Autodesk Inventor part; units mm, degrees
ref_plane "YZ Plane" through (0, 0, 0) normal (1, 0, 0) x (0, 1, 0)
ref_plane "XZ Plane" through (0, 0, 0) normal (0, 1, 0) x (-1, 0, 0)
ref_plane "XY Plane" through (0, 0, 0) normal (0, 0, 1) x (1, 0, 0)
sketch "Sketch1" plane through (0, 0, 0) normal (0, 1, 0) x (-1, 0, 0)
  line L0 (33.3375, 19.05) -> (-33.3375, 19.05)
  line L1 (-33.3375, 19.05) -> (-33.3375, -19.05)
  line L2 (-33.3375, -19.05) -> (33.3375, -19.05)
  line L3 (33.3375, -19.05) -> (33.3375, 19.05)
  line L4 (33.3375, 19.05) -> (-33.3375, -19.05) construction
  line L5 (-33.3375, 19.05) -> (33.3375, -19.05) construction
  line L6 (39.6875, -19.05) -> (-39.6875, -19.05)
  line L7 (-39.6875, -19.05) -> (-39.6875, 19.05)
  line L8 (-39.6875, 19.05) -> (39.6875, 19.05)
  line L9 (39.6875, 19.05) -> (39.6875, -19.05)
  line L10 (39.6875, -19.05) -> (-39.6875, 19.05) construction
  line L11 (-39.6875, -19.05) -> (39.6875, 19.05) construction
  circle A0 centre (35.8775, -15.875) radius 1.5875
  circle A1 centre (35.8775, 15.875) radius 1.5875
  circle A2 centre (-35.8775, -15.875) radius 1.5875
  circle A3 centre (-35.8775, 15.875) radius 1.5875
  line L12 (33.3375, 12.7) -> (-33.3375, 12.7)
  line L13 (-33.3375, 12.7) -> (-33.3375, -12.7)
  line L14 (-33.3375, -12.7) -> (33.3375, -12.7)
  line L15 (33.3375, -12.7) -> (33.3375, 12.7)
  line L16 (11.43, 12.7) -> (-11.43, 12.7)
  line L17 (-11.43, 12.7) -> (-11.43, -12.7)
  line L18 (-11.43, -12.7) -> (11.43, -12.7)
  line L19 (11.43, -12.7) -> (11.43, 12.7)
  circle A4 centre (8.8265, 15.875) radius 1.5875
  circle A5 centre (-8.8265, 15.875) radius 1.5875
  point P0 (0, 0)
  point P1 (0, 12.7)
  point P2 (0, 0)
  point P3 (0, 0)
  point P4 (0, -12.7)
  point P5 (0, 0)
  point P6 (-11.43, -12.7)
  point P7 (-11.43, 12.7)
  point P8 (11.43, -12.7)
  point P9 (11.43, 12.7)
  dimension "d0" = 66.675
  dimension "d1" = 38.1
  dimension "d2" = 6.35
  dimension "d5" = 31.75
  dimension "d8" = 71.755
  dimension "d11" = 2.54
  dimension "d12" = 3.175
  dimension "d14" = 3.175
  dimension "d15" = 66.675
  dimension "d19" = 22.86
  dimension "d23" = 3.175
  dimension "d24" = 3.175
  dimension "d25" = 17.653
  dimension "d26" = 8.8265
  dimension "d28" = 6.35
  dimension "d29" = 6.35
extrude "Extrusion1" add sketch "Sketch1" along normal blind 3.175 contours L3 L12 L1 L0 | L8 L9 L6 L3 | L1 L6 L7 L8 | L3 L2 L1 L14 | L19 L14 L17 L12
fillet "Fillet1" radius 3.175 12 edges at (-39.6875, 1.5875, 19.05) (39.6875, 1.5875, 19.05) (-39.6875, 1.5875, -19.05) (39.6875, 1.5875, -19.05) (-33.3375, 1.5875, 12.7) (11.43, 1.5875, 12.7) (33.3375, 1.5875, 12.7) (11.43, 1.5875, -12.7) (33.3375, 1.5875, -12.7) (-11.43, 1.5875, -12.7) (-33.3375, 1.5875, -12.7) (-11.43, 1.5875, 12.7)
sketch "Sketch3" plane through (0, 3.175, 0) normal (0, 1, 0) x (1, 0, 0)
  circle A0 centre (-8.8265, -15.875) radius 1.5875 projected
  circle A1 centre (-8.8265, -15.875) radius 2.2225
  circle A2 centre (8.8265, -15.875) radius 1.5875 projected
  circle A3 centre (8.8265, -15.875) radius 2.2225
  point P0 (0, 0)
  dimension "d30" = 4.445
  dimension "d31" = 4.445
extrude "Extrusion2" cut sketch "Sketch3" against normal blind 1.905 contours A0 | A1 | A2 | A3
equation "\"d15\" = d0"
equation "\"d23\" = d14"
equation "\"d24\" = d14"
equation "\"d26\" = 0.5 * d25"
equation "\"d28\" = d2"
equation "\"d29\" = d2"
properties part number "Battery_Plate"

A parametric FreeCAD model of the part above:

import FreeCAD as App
import Part
import Sketcher

V = App.Vector
Q = App.Units.Quantity


def edges_at(feature, points):
    """Names of the edges that pass closest to the given points."""
    edges = feature.Shape.Edges
    near = lambda p: min(range(len(edges)), key=lambda i: edges[i].distToShape(Part.Vertex(*p))[0])
    return sorted({f"Edge{near(p) + 1}" for p in points})


def add_polygon(sketch, points):
    """Adds a closed chain of lines whose ends are joined by coincident constraints."""
    first, n = sketch.GeometryCount, len(points)
    for a, b in zip(points, points[1:] + points[:1]):
        sketch.addGeometry(Part.LineSegment(App.Vector(*a, 0), App.Vector(*b, 0)), False)
    for i in range(n):
        sketch.addConstraint(Sketcher.Constraint("Coincident", first + i, 2, first + (i + 1) % n, 1))

doc = App.newDocument("Part")
body = doc.addObject("PartDesign::Body", "Body")

# Sketch on XZ plane
sketch1 = body.newObject("Sketcher::SketchObject", "Sketch")
sketch1.AttachmentSupport = (doc.getObject("XZ_Plane"), [""])
sketch1.MapMode = "FlatFace"
add_polygon(sketch1, [(39.7, 19.1), (39.7, -19.1), (-39.7, -19.1), (-39.7, 19.1)])  # lines 0-3
add_polygon(sketch1, [(-11.4, 12.7), (-33.3, 12.7), (-33.3, -12.7), (-11.4, -12.7)])  # lines 4-7
add_polygon(sketch1, [(33.3, 12.7), (11.4, 12.7), (11.4, -12.7), (33.3, -12.7)])  # lines 8-11
sketch1.addGeometry(Part.Circle(V(8.8, 15.9, 0), V(0, 0, 1), 1.6), False)  # 12
sketch1.addGeometry(Part.Circle(V(-8.8, 15.9, 0), V(0, 0, 1), 1.6), False)  # 13
sketch1.addGeometry(Part.Circle(V(-35.9, 15.9, 0), V(0, 0, 1), 1.6), False)  # 14
sketch1.addGeometry(Part.Circle(V(-35.9, -15.9, 0), V(0, 0, 1), 1.6), False)  # 15
sketch1.addGeometry(Part.Circle(V(35.9, 15.9, 0), V(0, 0, 1), 1.6), False)  # 16
sketch1.addGeometry(Part.Circle(V(35.9, -15.9, 0), V(0, 0, 1), 1.6), False)  # 17
sketch1.addConstraint([
    Sketcher.Constraint("Vertical", 0),
    Sketcher.Constraint("Horizontal", 1),
    Sketcher.Constraint("Vertical", 2),
    Sketcher.Constraint("Horizontal", 3),
    Sketcher.Constraint("Horizontal", 4),
    Sketcher.Constraint("Vertical", 5),
    Sketcher.Constraint("Horizontal", 6),
    Sketcher.Constraint("Vertical", 7),
    Sketcher.Constraint("Horizontal", 8),
    Sketcher.Constraint("Vertical", 9),
    Sketcher.Constraint("Horizontal", 10),
    Sketcher.Constraint("Vertical", 11),
    Sketcher.Constraint("Equal", 12, 13),
    Sketcher.Constraint("Equal", 13, 14),
    Sketcher.Constraint("Equal", 14, 15),
    Sketcher.Constraint("Equal", 15, 16),
    Sketcher.Constraint("Equal", 16, 17),
    Sketcher.Constraint("Symmetric", 15, 3, 16, 3, -1, 1),
    Sketcher.Constraint("Symmetric", 14, 3, 17, 3, -1, 1),
    Sketcher.Constraint("Symmetric", 0, 2, 2, 2, -1, 1),
    Sketcher.Constraint("Symmetric", 6, 2, 8, 2, -1, 1),
    Sketcher.Constraint("Symmetric", 4, 2, 10, 2, -1, 1),
    Sketcher.Constraint("Symmetric", 12, 3, 13, 3, -2),
    Sketcher.Constraint("Symmetric", 14, 3, 16, 3, -2),
    Sketcher.Constraint("Horizontal", 13, 3, 14, 3),
    Sketcher.Constraint("Horizontal", 7, 2, 8, 2),
    Sketcher.Constraint("Diameter", 12, Q("0.125 in")),
    Sketcher.Constraint("DistanceY", 0, 2, 0, 1, Q("1.5 in")),
    Sketcher.Constraint("DistanceX", 14, 3, 4, 2, Q("0.1 in")),
    Sketcher.Constraint("DistanceX", 7, 2, 8, 2, Q("0.9 in")),
    Sketcher.Constraint("DistanceY", 5, 2, 5, 1, Q("1 in")),
    Sketcher.Constraint("DistanceY", 15, 3, 14, 3, Q("1.25 in")),
    Sketcher.Constraint("DistanceX", 2, 2, 4, 2, Q("0.25 in")),
    Sketcher.Constraint("DistanceX", 13, 3, 12, 3, Q("0.695 in")),
    Sketcher.Constraint("DistanceX", 14, 3, 16, 3, Q("2.825 in")),
])
pad1 = body.newObject("PartDesign::Pad", "Pad")
pad1.Profile = sketch1
pad1.Length = Q("0.125 in")
pad1.Reversed = True
doc.recompute()

fillet = body.newObject("PartDesign::Fillet", "Fillet")
fillet.Base = (pad1, edges_at(pad1, [
    (-39.688, 1.587, 19.05),
    (39.688, 1.587, 19.05),
    (-39.688, 1.587, -19.05),
    (39.688, 1.587, -19.05),
    (-33.337, 1.587, 12.7),
    (11.43, 1.587, 12.7),
    (33.337, 1.587, 12.7),
    (11.43, 1.587, -12.7),
    (33.337, 1.587, -12.7),
    (-11.43, 1.587, -12.7),
    (-33.337, 1.587, -12.7),
    (-11.43, 1.587, 12.7),
]))
fillet.Radius = Q("0.125 in")

# Sketch on XZ plane
sketch2 = body.newObject("Sketcher::SketchObject", "Sketch001")
sketch2.AttachmentSupport = (doc.getObject("XZ_Plane"), [""])
sketch2.MapMode = "FlatFace"
sketch2.AttachmentOffset = App.Placement(V(0, 0, -0.125 * 25.4), App.Rotation())
sketch2.addGeometry([
    Part.Circle(V(-8.8, 15.9, 0), V(0, 0, 1), 2.2),
    Part.Circle(V(8.8, 15.9, 0), V(0, 0, 1), 2.2),
], False)
sketch2.addConstraint([
    Sketcher.Constraint("Equal", 0, 1),
    Sketcher.Constraint("Symmetric", 0, 3, 1, 3, -2),
    Sketcher.Constraint("Diameter", 0, Q("0.175 in")),
    Sketcher.Constraint("DistanceY", -1, 1, 0, 3, Q("0.625 in")),
    Sketcher.Constraint("DistanceX", 0, 3, 1, 3, Q("0.695 in")),
])
pocket1 = body.newObject("PartDesign::Pocket", "Pocket")
pocket1.Profile = sketch2
pocket1.Length = Q("0.075 in")
pocket1.Reversed = True

doc.recompute()
